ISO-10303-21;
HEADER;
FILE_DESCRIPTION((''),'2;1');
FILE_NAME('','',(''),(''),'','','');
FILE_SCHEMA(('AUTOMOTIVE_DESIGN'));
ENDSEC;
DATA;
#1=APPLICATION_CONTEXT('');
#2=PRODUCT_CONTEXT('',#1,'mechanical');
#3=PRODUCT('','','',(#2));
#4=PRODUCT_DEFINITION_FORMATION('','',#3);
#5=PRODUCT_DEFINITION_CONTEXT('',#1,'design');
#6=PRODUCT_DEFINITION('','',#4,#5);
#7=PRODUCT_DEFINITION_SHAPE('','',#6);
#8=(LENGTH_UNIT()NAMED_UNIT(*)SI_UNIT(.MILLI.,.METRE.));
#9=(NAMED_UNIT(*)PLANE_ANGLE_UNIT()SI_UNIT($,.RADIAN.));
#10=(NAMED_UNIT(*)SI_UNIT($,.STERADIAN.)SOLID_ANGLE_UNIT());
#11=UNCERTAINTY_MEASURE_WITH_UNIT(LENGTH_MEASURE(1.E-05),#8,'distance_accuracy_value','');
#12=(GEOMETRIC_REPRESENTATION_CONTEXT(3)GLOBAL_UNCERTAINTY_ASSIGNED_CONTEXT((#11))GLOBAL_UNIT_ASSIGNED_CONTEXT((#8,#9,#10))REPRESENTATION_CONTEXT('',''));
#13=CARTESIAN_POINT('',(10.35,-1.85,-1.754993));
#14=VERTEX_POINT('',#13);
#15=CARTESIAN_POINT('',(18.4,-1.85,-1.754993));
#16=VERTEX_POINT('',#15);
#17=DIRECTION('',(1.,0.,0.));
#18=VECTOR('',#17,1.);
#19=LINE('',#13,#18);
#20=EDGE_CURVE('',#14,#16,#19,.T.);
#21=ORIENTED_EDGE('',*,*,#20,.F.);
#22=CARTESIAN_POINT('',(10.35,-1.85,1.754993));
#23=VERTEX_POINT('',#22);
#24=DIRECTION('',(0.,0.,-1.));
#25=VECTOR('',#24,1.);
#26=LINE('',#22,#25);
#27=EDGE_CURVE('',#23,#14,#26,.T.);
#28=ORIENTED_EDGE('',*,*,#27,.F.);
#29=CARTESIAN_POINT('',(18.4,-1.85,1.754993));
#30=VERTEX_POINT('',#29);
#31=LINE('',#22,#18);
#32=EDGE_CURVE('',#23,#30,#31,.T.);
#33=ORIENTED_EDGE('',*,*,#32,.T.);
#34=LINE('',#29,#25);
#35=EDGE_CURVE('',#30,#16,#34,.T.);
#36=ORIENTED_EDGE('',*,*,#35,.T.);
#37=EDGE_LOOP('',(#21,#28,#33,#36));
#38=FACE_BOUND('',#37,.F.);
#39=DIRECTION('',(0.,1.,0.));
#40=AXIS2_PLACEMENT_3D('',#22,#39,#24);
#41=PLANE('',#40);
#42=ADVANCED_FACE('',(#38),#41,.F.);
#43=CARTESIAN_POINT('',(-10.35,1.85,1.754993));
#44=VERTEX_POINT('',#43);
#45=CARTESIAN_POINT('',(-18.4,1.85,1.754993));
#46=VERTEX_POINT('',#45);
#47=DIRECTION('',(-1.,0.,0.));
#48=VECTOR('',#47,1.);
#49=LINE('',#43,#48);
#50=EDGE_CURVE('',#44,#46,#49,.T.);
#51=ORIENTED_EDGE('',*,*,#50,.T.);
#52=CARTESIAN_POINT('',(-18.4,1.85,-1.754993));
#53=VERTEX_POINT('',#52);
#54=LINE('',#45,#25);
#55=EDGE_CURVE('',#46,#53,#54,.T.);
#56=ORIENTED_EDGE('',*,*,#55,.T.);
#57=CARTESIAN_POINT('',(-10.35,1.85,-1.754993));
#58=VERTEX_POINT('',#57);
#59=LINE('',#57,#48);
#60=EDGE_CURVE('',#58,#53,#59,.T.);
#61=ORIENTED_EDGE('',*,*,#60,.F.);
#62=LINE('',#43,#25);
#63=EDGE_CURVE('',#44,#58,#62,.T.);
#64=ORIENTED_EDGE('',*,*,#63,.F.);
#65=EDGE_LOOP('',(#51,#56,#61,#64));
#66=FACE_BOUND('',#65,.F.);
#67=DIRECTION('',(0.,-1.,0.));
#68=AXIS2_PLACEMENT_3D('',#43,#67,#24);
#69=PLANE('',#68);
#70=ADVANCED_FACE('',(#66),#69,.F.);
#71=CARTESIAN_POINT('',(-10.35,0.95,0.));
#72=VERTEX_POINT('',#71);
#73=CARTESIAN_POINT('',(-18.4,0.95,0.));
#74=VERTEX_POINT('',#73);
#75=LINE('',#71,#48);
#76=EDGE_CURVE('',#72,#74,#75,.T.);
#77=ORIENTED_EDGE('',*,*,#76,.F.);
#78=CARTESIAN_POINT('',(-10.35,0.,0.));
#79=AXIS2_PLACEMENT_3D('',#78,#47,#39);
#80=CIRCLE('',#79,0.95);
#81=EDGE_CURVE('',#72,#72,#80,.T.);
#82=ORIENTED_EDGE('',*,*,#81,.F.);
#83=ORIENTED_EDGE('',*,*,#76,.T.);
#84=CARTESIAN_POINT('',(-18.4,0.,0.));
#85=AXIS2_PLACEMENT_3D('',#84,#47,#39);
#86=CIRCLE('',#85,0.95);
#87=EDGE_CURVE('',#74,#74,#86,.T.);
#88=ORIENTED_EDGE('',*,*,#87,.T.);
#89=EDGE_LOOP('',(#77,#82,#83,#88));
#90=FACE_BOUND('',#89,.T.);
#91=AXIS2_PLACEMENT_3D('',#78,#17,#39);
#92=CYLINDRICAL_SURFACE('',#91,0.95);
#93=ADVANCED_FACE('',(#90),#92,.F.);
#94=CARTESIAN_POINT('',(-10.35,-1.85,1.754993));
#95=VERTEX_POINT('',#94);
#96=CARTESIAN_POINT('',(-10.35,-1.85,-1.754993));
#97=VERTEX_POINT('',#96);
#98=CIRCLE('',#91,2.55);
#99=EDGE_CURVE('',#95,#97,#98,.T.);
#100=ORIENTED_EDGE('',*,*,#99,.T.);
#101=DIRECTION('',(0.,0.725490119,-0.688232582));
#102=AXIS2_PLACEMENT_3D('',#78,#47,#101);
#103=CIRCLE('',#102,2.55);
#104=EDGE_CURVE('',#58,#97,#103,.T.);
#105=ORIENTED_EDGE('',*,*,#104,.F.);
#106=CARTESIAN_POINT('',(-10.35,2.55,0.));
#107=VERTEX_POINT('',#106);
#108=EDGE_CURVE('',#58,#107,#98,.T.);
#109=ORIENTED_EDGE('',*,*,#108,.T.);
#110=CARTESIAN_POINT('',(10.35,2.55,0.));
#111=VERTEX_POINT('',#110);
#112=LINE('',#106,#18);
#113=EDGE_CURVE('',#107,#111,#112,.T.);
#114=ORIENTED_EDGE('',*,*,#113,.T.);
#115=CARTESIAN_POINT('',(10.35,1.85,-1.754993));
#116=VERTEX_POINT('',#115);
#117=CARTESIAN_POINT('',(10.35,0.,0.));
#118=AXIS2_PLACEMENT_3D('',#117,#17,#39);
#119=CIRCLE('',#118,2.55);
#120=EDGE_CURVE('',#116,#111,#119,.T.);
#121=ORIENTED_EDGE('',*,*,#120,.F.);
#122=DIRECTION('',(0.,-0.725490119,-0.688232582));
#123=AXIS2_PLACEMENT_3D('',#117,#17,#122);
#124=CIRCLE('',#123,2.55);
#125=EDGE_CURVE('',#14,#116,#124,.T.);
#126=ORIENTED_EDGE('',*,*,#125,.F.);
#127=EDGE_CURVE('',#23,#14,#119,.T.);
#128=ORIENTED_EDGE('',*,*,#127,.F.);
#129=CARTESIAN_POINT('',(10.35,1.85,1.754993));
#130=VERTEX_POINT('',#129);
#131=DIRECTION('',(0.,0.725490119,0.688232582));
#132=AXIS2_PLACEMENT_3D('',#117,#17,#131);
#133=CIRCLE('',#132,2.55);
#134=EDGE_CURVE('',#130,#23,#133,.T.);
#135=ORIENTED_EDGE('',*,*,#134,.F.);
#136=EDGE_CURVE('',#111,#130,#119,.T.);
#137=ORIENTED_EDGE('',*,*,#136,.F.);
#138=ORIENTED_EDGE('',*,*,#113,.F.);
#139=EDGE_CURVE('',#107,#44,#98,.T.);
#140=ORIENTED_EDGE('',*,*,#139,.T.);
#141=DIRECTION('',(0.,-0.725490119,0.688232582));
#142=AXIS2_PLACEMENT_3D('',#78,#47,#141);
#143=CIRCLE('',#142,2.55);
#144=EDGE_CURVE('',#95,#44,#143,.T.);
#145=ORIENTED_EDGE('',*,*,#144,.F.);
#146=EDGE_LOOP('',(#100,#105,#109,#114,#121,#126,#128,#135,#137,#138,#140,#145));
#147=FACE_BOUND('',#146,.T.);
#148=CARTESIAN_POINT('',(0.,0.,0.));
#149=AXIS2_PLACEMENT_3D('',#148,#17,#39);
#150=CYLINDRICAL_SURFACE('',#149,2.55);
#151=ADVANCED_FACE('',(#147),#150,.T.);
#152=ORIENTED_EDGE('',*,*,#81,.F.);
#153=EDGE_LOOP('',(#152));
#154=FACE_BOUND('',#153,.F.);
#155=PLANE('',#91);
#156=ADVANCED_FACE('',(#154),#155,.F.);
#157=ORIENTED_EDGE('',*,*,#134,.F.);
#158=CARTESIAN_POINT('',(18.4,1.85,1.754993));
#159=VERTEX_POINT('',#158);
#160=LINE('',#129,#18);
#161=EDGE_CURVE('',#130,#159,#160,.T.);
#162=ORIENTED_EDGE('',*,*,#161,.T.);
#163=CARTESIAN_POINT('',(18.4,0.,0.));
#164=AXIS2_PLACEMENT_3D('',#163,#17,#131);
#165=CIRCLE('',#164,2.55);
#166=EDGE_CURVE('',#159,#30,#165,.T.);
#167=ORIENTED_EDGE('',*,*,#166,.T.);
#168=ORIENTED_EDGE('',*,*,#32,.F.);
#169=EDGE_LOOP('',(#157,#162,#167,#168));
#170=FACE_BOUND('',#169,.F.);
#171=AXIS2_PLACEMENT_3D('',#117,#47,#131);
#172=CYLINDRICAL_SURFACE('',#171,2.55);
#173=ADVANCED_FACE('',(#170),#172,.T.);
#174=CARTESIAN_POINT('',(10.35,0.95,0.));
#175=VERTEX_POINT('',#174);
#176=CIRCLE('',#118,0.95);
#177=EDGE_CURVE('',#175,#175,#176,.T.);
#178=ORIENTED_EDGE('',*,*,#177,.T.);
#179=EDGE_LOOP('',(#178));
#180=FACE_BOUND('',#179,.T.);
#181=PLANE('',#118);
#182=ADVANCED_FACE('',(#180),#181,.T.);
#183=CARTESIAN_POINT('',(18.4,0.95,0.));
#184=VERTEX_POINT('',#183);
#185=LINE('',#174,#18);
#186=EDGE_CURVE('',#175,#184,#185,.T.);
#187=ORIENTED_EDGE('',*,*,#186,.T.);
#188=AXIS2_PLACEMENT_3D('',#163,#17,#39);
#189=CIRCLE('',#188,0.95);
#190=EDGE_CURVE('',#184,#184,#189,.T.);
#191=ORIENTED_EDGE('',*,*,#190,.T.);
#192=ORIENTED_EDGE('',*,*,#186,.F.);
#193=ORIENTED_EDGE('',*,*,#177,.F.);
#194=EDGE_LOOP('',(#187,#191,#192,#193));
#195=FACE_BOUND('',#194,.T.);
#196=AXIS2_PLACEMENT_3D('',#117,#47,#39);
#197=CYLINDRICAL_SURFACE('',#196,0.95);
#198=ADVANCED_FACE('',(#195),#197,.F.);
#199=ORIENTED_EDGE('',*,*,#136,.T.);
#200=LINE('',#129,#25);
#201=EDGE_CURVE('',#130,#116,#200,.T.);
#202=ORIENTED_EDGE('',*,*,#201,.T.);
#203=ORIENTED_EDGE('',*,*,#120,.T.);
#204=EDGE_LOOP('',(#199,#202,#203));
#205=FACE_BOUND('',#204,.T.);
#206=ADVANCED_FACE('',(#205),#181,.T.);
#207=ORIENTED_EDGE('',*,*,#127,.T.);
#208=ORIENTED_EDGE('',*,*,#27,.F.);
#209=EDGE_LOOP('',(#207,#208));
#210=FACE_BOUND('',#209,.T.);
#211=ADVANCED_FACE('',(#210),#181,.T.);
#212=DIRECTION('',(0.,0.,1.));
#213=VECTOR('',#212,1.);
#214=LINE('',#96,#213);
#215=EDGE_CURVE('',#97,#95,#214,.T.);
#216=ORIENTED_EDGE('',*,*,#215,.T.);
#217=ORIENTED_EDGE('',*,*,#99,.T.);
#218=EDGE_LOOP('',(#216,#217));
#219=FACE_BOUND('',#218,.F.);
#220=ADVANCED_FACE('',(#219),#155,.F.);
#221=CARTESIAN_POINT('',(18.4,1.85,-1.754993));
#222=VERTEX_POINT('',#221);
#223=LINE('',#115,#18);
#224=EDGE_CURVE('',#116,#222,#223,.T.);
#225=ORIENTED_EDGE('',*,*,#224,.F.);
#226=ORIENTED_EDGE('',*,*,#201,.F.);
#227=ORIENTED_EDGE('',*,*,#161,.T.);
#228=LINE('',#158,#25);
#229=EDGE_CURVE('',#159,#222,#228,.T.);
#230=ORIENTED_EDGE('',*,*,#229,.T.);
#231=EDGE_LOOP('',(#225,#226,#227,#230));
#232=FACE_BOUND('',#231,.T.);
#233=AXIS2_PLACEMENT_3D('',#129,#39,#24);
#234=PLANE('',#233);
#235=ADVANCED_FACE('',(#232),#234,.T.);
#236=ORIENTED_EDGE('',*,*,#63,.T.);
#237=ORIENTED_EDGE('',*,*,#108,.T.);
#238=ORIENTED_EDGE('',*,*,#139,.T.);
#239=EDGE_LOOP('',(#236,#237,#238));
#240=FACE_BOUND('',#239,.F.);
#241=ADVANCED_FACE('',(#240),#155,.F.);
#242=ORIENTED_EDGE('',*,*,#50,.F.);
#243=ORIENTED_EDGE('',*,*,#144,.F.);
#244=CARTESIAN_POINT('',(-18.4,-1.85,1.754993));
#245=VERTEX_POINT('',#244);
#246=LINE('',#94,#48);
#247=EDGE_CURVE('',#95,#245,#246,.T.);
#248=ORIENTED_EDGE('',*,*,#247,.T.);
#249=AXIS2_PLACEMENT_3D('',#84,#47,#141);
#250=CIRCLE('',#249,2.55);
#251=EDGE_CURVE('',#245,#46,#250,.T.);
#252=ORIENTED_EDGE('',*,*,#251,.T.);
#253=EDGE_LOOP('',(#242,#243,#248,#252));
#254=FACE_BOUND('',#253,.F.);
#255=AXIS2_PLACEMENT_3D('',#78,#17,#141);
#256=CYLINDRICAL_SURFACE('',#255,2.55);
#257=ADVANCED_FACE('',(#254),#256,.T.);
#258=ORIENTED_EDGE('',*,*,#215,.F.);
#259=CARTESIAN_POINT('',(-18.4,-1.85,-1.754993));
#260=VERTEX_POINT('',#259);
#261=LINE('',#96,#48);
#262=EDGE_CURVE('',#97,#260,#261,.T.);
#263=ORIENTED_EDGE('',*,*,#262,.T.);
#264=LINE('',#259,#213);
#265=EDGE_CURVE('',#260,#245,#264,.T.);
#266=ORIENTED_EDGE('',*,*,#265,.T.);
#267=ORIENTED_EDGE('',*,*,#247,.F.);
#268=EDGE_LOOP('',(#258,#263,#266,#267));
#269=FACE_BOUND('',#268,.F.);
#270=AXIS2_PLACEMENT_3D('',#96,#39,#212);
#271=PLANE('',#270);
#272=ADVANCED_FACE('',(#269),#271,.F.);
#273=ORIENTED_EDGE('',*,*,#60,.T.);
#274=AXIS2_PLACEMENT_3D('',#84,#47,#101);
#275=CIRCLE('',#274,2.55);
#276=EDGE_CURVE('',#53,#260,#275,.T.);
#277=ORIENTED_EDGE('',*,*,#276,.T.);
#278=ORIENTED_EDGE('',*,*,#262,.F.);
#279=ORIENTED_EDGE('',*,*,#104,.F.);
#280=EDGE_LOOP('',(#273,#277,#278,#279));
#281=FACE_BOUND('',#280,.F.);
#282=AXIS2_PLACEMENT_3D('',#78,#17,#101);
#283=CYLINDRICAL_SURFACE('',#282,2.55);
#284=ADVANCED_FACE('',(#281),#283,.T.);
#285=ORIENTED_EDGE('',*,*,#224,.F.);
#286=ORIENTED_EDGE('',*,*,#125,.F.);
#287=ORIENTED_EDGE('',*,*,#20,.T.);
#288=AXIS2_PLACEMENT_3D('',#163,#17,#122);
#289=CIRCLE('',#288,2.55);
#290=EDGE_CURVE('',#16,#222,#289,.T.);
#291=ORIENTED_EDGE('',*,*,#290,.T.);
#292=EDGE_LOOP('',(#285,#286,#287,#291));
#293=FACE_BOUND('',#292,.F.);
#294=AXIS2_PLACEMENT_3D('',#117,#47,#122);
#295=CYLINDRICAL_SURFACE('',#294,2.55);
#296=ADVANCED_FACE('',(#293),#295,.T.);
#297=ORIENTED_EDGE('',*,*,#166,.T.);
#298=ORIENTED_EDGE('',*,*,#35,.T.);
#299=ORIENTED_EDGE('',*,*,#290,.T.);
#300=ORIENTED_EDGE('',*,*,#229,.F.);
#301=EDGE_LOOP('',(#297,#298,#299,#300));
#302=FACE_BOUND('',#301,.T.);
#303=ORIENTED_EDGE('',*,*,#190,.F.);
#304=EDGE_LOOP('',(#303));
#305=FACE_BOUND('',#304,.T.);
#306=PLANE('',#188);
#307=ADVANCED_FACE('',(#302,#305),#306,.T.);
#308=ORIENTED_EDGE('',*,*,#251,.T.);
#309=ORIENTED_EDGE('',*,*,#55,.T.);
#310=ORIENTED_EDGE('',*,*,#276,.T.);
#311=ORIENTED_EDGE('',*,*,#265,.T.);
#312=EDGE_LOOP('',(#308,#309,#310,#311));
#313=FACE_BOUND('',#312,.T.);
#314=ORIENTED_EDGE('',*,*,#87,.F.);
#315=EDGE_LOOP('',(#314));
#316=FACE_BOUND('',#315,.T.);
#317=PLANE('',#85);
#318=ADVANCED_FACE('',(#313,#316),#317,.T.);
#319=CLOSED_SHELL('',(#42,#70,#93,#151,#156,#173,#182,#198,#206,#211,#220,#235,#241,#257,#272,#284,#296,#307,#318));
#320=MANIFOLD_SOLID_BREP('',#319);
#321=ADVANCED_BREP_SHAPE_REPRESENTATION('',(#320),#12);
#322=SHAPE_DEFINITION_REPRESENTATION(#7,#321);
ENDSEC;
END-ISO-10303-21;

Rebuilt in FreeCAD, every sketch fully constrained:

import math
import FreeCAD as App
import Part
import Sketcher

V = App.Vector
Q = App.Units.Quantity

doc = App.newDocument("Part")
body = doc.addObject("PartDesign::Body", "Body")

sketch1 = body.newObject("Sketcher::SketchObject", "Sketch")
sketch1.AttachmentSupport = (doc.getObject("YZ_Plane"), [""])
sketch1.MapMode = "FlatFace"
sketch1.addGeometry(Part.Circle(V(0, 0, 0), V(0, 0, 1), 2.5), False)
sketch1.addConstraint([
    Sketcher.Constraint("Coincident", 0, 3, -1, 1),
    Sketcher.Constraint("Diameter", 0, Q("5.1 mm")),
])
pad1 = body.newObject("PartDesign::Pad", "Pad")
pad1.Profile = sketch1
pad1.Length = 20.7
pad1.Midplane = True

sketch2 = body.newObject("Sketcher::SketchObject", "Sketch001")
sketch2.AttachmentSupport = (doc.getObject("YZ_Plane"), [""])
sketch2.MapMode = "FlatFace"
sketch2.AttachmentOffset = App.Placement(V(0, 0, 10.35), App.Rotation())
sketch2.addGeometry([
    Part.ArcOfCircle(Part.Circle(V(0, 0, 0), V(0, 0, 1), 2.6), math.radians(43), math.radians(137)),
    Part.LineSegment(V(-1.9, 1.8, 0), V(-1.9, -1.8, 0)),
    Part.ArcOfCircle(Part.Circle(V(0, 0, 0), V(0, 0, 1), 2.6), math.radians(-137), math.radians(-43)),
    Part.LineSegment(V(1.9, -1.8, 0), V(1.9, 1.8, 0)),
    Part.Circle(V(0, 0, 0), V(0, 0, 1), 0.9),
], False)
sketch2.addConstraint([
    Sketcher.Constraint("Coincident", 0, 2, 1, 1),
    Sketcher.Constraint("Coincident", 1, 2, 2, 1),
    Sketcher.Constraint("Coincident", 2, 2, 3, 1),
    Sketcher.Constraint("Coincident", 3, 2, 0, 1),
    Sketcher.Constraint("Vertical", 1),
    Sketcher.Constraint("Vertical", 3),
    Sketcher.Constraint("Coincident", 0, 3, -1, 1),
    Sketcher.Constraint("Coincident", 2, 3, -1, 1),
    Sketcher.Constraint("Coincident", 4, 3, -1, 1),
    Sketcher.Constraint("Equal", 0, 2),
    Sketcher.Constraint("Horizontal", 1, 2, 2, 2),
    Sketcher.Constraint("Diameter", 4, Q("1.9 mm")),
    Sketcher.Constraint("Radius", 0, Q("2.55 mm")),
    Sketcher.Constraint("DistanceX", 1, 2, 2, 2, Q("3.7 mm")),
])
pad2 = body.newObject("PartDesign::Pad", "Pad001")
pad2.Profile = sketch2
pad2.Length = 8.05

sketch3 = body.newObject("Sketcher::SketchObject", "Sketch002")
sketch3.AttachmentSupport = (doc.getObject("YZ_Plane"), [""])
sketch3.MapMode = "FlatFace"
sketch3.AttachmentOffset = App.Placement(V(0, 0, -10.35), App.Rotation())
sketch3.addGeometry([
    Part.LineSegment(V(1.9, 1.8, 0), V(1.9, -1.8, 0)),
    Part.ArcOfCircle(Part.Circle(V(0, 0, 0), V(0, 0, 1), 2.6), math.radians(-137), math.radians(-43)),
    Part.LineSegment(V(-1.9, -1.8, 0), V(-1.9, 1.8, 0)),
    Part.ArcOfCircle(Part.Circle(V(0, 0, 0), V(0, 0, 1), 2.6), math.radians(43), math.radians(137)),
    Part.Circle(V(0, 0, 0), V(0, 0, 1), 0.9),
], False)
sketch3.addConstraint([
    Sketcher.Constraint("Coincident", 0, 2, 1, 2),
    Sketcher.Constraint("Coincident", 1, 1, 2, 1),
    Sketcher.Constraint("Coincident", 2, 2, 3, 2),
    Sketcher.Constraint("Coincident", 3, 1, 0, 1),
    Sketcher.Constraint("Vertical", 0),
    Sketcher.Constraint("Vertical", 2),
    Sketcher.Constraint("Coincident", 1, 3, -1, 1),
    Sketcher.Constraint("Coincident", 3, 3, -1, 1),
    Sketcher.Constraint("Coincident", 4, 3, -1, 1),
    Sketcher.Constraint("Equal", 1, 3),
    Sketcher.Constraint("Horizontal", 0, 2, 1, 1),
    Sketcher.Constraint("Diameter", 4, Q("1.9 mm")),
    Sketcher.Constraint("Radius", 1, Q("2.55 mm")),
    Sketcher.Constraint("DistanceX", 1, 1, 0, 2, Q("3.7 mm")),
])
pad3 = body.newObject("PartDesign::Pad", "Pad002")
pad3.Profile = sketch3
pad3.Length = 8.05
pad3.Reversed = True

doc.recompute()
